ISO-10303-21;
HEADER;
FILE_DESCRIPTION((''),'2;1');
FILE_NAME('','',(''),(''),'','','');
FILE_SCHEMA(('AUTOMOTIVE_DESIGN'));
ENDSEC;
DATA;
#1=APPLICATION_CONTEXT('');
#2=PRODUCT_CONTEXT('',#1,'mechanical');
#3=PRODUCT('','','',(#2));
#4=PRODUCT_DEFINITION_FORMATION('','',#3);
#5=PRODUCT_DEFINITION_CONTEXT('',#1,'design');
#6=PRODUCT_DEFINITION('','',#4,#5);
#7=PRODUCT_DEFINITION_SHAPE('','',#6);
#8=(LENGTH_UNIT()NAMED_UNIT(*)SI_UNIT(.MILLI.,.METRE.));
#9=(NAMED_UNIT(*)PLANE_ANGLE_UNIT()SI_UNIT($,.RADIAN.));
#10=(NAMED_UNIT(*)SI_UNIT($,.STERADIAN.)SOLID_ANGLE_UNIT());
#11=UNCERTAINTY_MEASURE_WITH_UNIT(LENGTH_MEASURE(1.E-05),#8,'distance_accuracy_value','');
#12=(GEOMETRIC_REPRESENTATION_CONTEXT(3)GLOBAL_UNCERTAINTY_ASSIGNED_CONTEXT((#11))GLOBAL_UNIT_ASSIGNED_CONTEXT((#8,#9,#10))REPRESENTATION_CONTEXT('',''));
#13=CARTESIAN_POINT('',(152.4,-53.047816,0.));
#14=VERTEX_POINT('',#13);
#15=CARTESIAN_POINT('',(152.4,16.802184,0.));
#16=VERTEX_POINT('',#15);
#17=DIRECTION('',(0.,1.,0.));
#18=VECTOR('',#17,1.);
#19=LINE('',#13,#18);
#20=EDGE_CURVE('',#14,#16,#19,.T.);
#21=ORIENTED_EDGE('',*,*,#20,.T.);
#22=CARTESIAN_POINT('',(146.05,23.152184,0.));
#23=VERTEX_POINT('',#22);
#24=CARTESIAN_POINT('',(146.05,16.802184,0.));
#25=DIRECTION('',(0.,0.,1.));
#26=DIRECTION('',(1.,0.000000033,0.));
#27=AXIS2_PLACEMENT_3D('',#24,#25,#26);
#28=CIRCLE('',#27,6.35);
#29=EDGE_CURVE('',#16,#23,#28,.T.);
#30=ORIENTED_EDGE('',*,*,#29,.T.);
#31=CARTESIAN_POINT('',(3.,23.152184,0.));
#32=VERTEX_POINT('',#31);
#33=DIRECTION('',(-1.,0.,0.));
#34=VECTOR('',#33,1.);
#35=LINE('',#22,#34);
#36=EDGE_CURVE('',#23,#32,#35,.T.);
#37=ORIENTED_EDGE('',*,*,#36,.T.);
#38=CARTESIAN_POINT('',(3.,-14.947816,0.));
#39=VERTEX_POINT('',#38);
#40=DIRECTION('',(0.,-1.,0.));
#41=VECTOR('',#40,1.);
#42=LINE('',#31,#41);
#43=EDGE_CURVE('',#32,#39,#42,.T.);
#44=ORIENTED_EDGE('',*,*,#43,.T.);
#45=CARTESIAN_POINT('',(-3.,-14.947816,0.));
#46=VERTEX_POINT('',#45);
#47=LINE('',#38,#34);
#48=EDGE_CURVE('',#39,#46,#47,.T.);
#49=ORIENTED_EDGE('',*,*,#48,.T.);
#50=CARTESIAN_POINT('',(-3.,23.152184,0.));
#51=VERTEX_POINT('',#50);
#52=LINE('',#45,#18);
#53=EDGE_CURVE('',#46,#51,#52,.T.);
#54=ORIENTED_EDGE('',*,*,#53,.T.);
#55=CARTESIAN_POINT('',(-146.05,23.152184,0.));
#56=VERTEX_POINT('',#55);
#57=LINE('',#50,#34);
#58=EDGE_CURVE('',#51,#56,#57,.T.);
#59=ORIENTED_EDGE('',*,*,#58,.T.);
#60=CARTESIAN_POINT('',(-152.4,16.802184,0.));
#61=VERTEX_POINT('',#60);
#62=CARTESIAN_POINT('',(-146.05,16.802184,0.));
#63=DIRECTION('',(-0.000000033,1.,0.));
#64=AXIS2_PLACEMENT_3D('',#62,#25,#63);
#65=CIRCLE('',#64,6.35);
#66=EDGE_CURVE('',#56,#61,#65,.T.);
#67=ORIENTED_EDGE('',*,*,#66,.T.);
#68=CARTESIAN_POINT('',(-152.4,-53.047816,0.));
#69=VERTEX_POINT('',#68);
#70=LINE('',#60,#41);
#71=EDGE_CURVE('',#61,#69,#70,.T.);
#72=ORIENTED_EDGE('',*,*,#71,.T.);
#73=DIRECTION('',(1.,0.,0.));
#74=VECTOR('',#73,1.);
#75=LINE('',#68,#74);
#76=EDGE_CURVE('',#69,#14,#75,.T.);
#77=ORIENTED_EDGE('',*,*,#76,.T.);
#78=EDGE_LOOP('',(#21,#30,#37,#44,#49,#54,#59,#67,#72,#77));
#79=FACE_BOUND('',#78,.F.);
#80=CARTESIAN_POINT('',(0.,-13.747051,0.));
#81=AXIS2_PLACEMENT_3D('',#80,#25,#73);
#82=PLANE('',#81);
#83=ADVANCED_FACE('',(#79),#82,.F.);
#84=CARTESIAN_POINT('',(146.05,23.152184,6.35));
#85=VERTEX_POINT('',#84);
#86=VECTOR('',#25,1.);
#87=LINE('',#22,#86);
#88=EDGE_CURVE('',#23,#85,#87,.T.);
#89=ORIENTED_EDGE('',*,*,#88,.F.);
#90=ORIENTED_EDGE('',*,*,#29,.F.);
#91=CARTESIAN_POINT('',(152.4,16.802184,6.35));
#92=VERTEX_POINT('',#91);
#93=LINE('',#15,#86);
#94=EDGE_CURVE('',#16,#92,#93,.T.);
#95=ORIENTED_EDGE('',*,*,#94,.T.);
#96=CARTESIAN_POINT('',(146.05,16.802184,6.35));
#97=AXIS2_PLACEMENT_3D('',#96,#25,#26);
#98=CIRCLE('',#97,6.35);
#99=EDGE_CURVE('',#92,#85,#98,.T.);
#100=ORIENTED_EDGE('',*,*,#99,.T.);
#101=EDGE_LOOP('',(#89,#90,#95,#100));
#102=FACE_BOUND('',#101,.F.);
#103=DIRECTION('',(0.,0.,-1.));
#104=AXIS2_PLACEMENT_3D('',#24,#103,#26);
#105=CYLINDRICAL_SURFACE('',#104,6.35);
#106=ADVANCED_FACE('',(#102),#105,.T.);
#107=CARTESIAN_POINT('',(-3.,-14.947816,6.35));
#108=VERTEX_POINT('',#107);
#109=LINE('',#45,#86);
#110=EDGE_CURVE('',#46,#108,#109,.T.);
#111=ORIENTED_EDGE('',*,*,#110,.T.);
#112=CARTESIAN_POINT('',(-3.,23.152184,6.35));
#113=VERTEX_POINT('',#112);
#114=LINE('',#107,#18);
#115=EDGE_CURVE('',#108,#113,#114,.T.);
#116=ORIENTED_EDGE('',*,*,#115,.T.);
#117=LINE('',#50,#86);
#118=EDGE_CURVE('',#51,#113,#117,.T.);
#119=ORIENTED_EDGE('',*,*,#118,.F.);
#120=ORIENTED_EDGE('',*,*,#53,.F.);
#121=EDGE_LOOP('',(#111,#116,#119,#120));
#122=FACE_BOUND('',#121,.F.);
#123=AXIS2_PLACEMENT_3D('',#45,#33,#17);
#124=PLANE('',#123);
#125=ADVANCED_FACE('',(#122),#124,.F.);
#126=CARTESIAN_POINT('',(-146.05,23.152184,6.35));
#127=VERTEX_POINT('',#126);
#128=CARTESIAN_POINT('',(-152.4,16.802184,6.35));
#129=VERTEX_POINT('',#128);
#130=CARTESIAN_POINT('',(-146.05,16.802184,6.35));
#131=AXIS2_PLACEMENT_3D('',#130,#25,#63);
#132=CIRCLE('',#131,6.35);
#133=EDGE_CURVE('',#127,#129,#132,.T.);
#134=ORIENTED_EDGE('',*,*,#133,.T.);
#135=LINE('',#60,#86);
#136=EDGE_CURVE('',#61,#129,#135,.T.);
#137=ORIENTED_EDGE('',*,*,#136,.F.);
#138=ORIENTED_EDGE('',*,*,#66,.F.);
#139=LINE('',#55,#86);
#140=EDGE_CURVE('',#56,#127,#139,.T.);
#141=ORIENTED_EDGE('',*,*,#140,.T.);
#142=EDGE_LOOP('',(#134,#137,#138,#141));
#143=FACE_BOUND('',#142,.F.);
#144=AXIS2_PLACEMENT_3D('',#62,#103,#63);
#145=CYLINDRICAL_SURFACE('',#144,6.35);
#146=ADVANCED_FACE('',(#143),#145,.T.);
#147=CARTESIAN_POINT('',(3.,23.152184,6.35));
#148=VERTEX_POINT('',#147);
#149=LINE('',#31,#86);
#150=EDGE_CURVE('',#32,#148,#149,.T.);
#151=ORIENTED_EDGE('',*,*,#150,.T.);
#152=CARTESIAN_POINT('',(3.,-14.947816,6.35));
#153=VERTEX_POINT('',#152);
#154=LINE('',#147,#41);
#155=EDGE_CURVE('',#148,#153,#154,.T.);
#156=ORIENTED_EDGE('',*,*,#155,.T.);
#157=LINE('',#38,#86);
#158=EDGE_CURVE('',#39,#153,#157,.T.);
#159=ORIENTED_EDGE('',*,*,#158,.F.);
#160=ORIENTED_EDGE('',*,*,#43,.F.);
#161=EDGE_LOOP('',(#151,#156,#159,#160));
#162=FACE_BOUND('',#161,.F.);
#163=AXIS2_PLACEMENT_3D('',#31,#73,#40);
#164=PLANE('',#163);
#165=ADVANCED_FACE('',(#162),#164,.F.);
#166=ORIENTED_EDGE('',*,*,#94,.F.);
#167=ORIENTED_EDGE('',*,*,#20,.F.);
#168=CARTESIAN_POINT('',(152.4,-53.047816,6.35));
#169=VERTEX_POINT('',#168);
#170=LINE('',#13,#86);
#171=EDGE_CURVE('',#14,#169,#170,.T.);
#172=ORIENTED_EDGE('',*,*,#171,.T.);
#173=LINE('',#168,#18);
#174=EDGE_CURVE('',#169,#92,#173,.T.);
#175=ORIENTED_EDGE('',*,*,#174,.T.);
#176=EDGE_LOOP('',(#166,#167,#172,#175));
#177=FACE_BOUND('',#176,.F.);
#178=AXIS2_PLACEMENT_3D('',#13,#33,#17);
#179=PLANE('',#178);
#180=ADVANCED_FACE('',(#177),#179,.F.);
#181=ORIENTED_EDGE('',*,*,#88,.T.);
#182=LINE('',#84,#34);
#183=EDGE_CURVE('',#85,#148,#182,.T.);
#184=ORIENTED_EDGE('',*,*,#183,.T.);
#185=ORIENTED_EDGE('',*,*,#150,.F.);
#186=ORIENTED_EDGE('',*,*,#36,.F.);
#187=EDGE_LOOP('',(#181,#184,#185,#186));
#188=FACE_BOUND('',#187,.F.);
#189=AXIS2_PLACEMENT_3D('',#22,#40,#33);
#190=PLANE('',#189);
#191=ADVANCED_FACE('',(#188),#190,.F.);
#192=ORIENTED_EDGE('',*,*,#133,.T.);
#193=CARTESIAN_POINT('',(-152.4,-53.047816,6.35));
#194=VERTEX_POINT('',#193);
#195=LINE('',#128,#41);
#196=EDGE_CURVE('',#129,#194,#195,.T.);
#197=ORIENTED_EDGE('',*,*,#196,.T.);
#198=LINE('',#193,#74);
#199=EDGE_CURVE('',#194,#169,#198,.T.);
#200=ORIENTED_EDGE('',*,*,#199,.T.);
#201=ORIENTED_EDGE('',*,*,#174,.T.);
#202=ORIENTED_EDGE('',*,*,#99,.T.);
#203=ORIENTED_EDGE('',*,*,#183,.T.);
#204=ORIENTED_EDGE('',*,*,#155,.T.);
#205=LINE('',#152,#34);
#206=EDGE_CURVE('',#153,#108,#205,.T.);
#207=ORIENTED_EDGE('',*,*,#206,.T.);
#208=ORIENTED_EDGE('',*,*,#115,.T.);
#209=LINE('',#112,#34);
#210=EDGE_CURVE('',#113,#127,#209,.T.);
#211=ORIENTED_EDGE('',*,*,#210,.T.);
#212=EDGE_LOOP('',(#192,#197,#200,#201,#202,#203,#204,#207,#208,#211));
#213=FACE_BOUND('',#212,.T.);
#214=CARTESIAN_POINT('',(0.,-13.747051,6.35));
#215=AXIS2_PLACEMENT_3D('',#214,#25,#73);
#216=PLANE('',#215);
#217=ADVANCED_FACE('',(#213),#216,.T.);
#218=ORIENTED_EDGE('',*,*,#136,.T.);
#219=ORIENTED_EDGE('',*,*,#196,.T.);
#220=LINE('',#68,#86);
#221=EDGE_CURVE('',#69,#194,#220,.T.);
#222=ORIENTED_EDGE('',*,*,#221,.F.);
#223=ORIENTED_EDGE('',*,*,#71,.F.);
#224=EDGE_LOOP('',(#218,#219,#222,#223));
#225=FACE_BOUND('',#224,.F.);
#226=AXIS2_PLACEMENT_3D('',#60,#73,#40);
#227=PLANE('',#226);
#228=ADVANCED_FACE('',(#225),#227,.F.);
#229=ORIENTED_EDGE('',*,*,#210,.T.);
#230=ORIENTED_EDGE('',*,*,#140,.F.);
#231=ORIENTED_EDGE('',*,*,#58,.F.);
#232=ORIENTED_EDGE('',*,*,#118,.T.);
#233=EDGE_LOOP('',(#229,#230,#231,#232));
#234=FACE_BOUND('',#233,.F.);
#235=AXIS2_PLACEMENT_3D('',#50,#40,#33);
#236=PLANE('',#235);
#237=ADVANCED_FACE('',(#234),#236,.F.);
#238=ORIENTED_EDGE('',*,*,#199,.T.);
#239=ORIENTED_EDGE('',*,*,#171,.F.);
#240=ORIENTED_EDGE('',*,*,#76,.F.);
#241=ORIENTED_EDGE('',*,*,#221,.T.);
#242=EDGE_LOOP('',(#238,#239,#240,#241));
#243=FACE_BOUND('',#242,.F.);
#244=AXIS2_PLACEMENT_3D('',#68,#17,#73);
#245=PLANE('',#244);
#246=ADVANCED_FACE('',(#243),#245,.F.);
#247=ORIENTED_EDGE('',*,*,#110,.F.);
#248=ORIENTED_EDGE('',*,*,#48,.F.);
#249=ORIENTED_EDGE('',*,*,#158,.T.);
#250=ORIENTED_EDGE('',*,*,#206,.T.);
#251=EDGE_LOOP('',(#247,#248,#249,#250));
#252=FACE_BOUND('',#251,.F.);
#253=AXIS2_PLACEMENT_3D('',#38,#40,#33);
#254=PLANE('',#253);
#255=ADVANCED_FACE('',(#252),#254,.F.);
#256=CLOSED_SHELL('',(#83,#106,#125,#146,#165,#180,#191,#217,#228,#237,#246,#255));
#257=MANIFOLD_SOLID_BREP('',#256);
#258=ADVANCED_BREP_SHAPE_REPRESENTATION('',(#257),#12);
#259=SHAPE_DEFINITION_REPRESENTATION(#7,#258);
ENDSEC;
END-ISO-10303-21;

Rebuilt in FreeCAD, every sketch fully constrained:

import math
import FreeCAD as App
import Part
import Sketcher
from FreeCAD import Vector
Q = App.Units.Quantity

doc = App.newDocument("Part")
body = doc.addObject("PartDesign::Body", "Body")

sketch1 = doc.addObject("Sketcher::SketchObject", "Sketch")
body.addObject(sketch1)
sketch1.AttachmentSupport = (doc.XY_Plane, [""])
sketch1.MapMode = "FlatFace"
sketch1.addGeometry(Part.LineSegment(Vector(-3, 23, 0), Vector(-146, 23, 0)), False)
sketch1.addGeometry(Part.ArcOfCircle(Part.Circle(Vector(-146, 17, 0), Vector(0, 0, 1), 6), math.radians(90), math.radians(180)), False)
sketch1.addGeometry(Part.LineSegment(Vector(-152, 17, 0), Vector(-152, -53, 0)), False)
sketch1.addGeometry(Part.LineSegment(Vector(-152, -53, 0), Vector(152, -53, 0)), False)
sketch1.addGeometry(Part.LineSegment(Vector(152, -53, 0), Vector(152, 17, 0)), False)
sketch1.addGeometry(Part.ArcOfCircle(Part.Circle(Vector(146, 17, 0), Vector(0, 0, 1), 6), math.radians(0), math.radians(90)), False)
sketch1.addGeometry(Part.LineSegment(Vector(146, 23, 0), Vector(3, 23, 0)), False)
sketch1.addGeometry(Part.LineSegment(Vector(3, 23, 0), Vector(3, -15, 0)), False)
sketch1.addGeometry(Part.LineSegment(Vector(3, -15, 0), Vector(-3, -15, 0)), False)
sketch1.addGeometry(Part.LineSegment(Vector(-3, -15, 0), Vector(-3, 23, 0)), False)
sketch1.addConstraint(Sketcher.Constraint("Tangent", 0, 2, 1, 1))
sketch1.addConstraint(Sketcher.Constraint("Tangent", 1, 2, 2, 1))
sketch1.addConstraint(Sketcher.Constraint("Coincident", 2, 2, 3, 1))
sketch1.addConstraint(Sketcher.Constraint("Coincident", 3, 2, 4, 1))
sketch1.addConstraint(Sketcher.Constraint("Tangent", 4, 2, 5, 1))
sketch1.addConstraint(Sketcher.Constraint("Tangent", 5, 2, 6, 1))
sketch1.addConstraint(Sketcher.Constraint("Coincident", 6, 2, 7, 1))
sketch1.addConstraint(Sketcher.Constraint("Coincident", 7, 2, 8, 1))
sketch1.addConstraint(Sketcher.Constraint("Coincident", 8, 2, 9, 1))
sketch1.addConstraint(Sketcher.Constraint("Coincident", 9, 2, 0, 1))
sketch1.addConstraint(Sketcher.Constraint("Horizontal", 0))
sketch1.addConstraint(Sketcher.Constraint("Vertical", 2))
sketch1.addConstraint(Sketcher.Constraint("Horizontal", 3))
sketch1.addConstraint(Sketcher.Constraint("Vertical", 4))
sketch1.addConstraint(Sketcher.Constraint("Horizontal", 6))
sketch1.addConstraint(Sketcher.Constraint("Vertical", 7))
sketch1.addConstraint(Sketcher.Constraint("Horizontal", 8))
sketch1.addConstraint(Sketcher.Constraint("Vertical", 9))
sketch1.addConstraint(Sketcher.Constraint("Equal", 1, 5))
sketch1.addConstraint(Sketcher.Constraint("Symmetric", 1, 3, 5, 3, -2))
sketch1.addConstraint(Sketcher.Constraint("Equal", 0, 6))
sketch1.addConstraint(Sketcher.Constraint("DistanceX", 3, 1, 3, 2, Q("12 in")))
sketch1.addConstraint(Sketcher.Constraint("Radius", 1, Q("0.25 in")))
sketch1.addConstraint(Sketcher.Constraint("DistanceY", 7, 2, 7, 1, Q("1.5 in")))
sketch1.addConstraint(Sketcher.Constraint("DistanceY", 2, 2, 0, 2, Q("3 in")))
sketch1.addConstraint(Sketcher.Constraint("DistanceX", 0, 2, 0, 1, 143.05))
sketch1.addConstraint(Sketcher.Constraint("DistanceY", -1, 1, 1, 3, 16.802184))
pad1 = doc.addObject("PartDesign::Pad", "Pad")
body.addObject(pad1)
pad1.Profile = sketch1
pad1.Length = Q("0.25 in")

doc.recompute()
